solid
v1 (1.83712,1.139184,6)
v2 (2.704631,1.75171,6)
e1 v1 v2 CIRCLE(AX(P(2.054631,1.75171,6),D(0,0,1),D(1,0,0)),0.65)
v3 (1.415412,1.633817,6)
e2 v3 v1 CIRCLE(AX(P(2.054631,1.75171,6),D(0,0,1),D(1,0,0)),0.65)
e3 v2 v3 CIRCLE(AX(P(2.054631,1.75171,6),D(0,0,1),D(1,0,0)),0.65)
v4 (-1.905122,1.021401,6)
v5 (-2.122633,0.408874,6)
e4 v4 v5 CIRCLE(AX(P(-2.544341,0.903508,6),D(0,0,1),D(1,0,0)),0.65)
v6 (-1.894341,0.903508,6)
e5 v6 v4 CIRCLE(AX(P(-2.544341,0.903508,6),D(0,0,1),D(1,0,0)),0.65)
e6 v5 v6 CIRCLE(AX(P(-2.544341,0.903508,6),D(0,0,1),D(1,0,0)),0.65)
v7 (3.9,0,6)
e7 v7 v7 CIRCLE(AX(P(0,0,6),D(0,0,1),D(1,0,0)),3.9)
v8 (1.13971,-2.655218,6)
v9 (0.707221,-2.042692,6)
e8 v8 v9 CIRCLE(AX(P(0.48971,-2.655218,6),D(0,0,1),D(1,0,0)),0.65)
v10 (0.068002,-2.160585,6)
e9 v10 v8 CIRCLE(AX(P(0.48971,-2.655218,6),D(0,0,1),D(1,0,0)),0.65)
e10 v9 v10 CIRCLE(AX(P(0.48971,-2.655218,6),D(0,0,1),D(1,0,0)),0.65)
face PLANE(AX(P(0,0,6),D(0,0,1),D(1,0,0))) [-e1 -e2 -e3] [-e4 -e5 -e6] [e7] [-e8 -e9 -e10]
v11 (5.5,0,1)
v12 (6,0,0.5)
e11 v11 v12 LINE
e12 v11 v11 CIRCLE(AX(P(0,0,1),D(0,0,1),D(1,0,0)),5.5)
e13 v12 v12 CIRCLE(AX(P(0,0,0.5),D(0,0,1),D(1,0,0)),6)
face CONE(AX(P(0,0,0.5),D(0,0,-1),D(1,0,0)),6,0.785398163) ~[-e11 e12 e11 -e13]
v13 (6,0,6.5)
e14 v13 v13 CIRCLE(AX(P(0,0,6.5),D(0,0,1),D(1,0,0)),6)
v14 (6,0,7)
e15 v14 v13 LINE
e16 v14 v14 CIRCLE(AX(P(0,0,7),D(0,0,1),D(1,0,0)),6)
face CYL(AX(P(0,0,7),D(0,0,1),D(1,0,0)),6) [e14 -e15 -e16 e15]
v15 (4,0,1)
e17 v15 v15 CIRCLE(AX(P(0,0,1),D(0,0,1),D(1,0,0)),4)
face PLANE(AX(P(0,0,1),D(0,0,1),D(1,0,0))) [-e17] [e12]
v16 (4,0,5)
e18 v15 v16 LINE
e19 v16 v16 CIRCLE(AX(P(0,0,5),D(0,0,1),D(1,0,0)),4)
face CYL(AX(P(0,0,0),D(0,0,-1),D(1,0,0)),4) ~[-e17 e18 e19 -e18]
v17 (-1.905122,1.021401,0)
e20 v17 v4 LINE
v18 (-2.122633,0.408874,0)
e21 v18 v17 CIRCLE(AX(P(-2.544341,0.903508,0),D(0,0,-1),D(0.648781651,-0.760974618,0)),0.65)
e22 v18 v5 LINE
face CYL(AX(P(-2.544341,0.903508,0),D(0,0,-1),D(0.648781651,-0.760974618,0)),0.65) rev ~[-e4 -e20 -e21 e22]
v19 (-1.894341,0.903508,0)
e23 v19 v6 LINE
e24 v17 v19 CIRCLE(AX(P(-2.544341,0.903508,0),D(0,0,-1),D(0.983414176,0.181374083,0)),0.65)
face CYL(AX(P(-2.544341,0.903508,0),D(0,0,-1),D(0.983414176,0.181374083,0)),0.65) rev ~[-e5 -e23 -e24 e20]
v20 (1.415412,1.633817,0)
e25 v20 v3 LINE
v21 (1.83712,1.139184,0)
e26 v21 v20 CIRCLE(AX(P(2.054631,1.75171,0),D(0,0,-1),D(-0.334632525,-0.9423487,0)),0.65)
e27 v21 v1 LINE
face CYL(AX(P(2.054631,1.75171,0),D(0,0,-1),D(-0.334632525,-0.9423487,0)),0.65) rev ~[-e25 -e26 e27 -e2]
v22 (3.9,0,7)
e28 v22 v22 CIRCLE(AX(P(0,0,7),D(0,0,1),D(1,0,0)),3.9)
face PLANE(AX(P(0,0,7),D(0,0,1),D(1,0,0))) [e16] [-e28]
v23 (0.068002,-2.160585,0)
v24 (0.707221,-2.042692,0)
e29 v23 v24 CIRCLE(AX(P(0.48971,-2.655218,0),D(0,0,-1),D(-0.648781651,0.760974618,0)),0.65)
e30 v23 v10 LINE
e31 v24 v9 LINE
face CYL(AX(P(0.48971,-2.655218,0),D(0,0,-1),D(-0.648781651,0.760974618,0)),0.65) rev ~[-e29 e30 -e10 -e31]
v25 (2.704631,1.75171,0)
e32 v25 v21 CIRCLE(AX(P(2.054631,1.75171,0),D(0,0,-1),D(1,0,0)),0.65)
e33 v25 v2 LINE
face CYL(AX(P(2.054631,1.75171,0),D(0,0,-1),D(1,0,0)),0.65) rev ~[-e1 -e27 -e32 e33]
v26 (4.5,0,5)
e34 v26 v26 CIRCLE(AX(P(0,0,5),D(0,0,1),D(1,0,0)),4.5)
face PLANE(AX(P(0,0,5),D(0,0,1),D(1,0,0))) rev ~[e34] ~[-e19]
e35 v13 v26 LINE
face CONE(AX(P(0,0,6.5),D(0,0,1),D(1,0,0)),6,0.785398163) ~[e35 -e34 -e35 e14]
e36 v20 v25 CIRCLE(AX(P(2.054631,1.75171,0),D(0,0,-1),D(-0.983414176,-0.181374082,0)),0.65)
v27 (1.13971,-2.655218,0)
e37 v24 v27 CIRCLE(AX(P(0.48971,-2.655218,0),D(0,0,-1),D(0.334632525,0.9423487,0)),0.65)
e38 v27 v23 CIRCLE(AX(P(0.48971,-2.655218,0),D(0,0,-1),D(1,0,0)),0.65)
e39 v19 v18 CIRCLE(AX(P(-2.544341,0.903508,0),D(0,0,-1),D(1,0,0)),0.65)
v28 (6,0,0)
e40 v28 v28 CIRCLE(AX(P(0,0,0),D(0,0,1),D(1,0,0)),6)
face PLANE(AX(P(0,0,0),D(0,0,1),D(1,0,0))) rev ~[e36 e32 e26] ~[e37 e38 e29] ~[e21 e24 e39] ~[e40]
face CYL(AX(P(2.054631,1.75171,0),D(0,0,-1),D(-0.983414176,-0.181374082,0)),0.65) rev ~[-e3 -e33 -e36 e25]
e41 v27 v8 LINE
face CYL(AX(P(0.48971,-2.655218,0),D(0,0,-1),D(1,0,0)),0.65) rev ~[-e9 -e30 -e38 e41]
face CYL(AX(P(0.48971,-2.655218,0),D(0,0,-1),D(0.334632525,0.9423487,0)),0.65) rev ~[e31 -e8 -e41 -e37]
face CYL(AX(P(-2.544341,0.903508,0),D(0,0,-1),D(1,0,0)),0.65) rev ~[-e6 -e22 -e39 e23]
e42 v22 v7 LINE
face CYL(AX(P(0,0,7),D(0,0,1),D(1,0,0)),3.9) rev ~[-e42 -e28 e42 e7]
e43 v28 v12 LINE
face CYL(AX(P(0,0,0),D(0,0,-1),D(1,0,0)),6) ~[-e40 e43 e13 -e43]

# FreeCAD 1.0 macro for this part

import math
import FreeCAD as App
import Part
import Sketcher

V = App.Vector


def edges_at(feature, points):
    """Names of the edges that pass closest to the given points."""
    edges = feature.Shape.Edges
    near = lambda p: min(range(len(edges)), key=lambda i: edges[i].distToShape(Part.Vertex(*p))[0])
    return sorted({f"Edge{near(p) + 1}" for p in points})

doc = App.newDocument("Part")
body = doc.addObject("PartDesign::Body", "Body")

sketch1 = body.newObject("Sketcher::SketchObject", "Sketch")
sketch1.AttachmentSupport = (doc.getObject("XY_Plane"), [""])
sketch1.MapMode = "FlatFace"
sketch1.addGeometry([
    Part.Circle(V(0, 0, 0), V(0, 0, 1), 6),
    Part.Circle(V(0, 0, 0), V(0, 0, 1), 4),
], False)
sketch1.addConstraint([
    Sketcher.Constraint("Coincident", 0, 3, -1, 1),
    Sketcher.Constraint("Coincident", 1, 3, -1, 1),
    Sketcher.Constraint("Diameter", 0, 12.0),
    Sketcher.Constraint("Diameter", 1, 8.0),
])
pad1 = body.newObject("PartDesign::Pad", "Pad")
pad1.Profile = sketch1
pad1.Length = 1

sketch2 = body.newObject("Sketcher::SketchObject", "Sketch001")
sketch2.AttachmentSupport = (doc.getObject("XY_Plane"), [""])
sketch2.MapMode = "FlatFace"
sketch2.addGeometry([
    Part.Circle(V(0, 0, 0), V(0, 0, 1), 4),
    Part.ArcOfCircle(Part.Circle(V(0.48971, -2.655218, 0), V(0, 0, 1), 0.65), math.radians(0), math.radians(70.449806)),
    Part.ArcOfCircle(Part.Circle(V(0.48971, -2.655218, 0), V(0, 0, 1), 0.65), math.radians(130.449806), math.radians(360)),
    Part.ArcOfCircle(Part.Circle(V(0.48971, -2.655218, 0), V(0, 0, 1), 0.65), math.radians(70.449806), math.radians(130.449806)),
    Part.ArcOfCircle(Part.Circle(V(2.054631, 1.75171, 0), V(0, 0, 1), 0.65), math.radians(-109.550194), math.radians(0)),
    Part.ArcOfCircle(Part.Circle(V(2.054631, 1.75171, 0), V(0, 0, 1), 0.65), math.radians(-169.550194), math.radians(-109.550194)),
    Part.ArcOfCircle(Part.Circle(V(2.054631, 1.75171, 0), V(0, 0, 1), 0.65), math.radians(0), math.radians(190.449806)),
    Part.ArcOfCircle(Part.Circle(V(-2.544341, 0.903508, 0), V(0, 0, 1), 0.65), math.radians(10.449806), math.radians(310.449806)),
    Part.ArcOfCircle(Part.Circle(V(-2.544341, 0.903508, 0), V(0, 0, 1), 0.65), math.radians(0), math.radians(10.449806)),
    Part.ArcOfCircle(Part.Circle(V(-2.544341, 0.903508, 0), V(0, 0, 1), 0.65), math.radians(-49.550194), math.radians(0)),
], False)
sketch2.addConstraint([
    Sketcher.Constraint("Tangent", 1, 1, 2, 2),
    Sketcher.Constraint("Tangent", 2, 1, 3, 2),
    Sketcher.Constraint("Tangent", 3, 1, 1, 2),
    Sketcher.Constraint("Tangent", 4, 1, 5, 2),
    Sketcher.Constraint("Tangent", 5, 1, 6, 2),
    Sketcher.Constraint("Tangent", 6, 1, 4, 2),
    Sketcher.Constraint("Tangent", 7, 1, 8, 2),
    Sketcher.Constraint("Tangent", 8, 1, 9, 2),
    Sketcher.Constraint("Tangent", 9, 1, 7, 2),
    Sketcher.Constraint("Coincident", 0, 3, -1, 1),
    Sketcher.Constraint("Equal", 3, 4),
    Sketcher.Constraint("Equal", 6, 7),
    Sketcher.Constraint("Horizontal", 3, 3, 1, 1),
    Sketcher.Constraint("Horizontal", 5, 3, 6, 1),
    Sketcher.Constraint("Horizontal", 9, 3, 8, 1),
    Sketcher.Constraint("Diameter", 0, 8.0),
    Sketcher.Constraint("Radius", 1, 0.65),
    Sketcher.Constraint("DistanceX", -1, 1, 2, 1, 0.068002),
    Sketcher.Constraint("DistanceY", -1, 1, 7, 1, 1.021401),
    Sketcher.Constraint("DistanceX", 3, 1, 4, 1, 1.129899),
    Sketcher.Constraint("DistanceX", -1, 1, 1, 3, 0.48971),
    Sketcher.Constraint("DistanceY", 1, 3, -1, 1, 2.655218),
    Sketcher.Constraint("DistanceX", -1, 1, 4, 3, 2.054631),
    Sketcher.Constraint("DistanceY", -1, 1, 4, 3, 1.75171),
    Sketcher.Constraint("DistanceX", 7, 3, -1, 1, 2.544341),
    Sketcher.Constraint("DistanceX", -1, 1, 3, 1, 0.707221),
    Sketcher.Constraint("DistanceX", 5, 1, 4, 1, 0.421708),
    Sketcher.Constraint("DistanceX", 8, 3, 7, 1, 0.639219),
    Sketcher.Constraint("DistanceX", 9, 1, 8, 1, 0.228292),
])
pad2 = body.newObject("PartDesign::Pad", "Pad001")
pad2.Profile = sketch2
pad2.Length = 7

sketch3 = body.newObject("Sketcher::SketchObject", "Sketch002")
sketch3.AttachmentSupport = (doc.getObject("XY_Plane"), [""])
sketch3.MapMode = "FlatFace"
sketch3.AttachmentOffset = App.Placement(V(0, 0, 7), App.Rotation())
sketch3.addGeometry([
    Part.Circle(V(0, 0, 0), V(0, 0, 1), 6),
    Part.Circle(V(0, 0, 0), V(0, 0, 1), 4),
], False)
sketch3.addConstraint([
    Sketcher.Constraint("Coincident", 0, 3, -1, 1),
    Sketcher.Constraint("Coincident", 1, 3, -1, 1),
    Sketcher.Constraint("Diameter", 0, 12.0),
    Sketcher.Constraint("Diameter", 1, 8.0),
])
pad3 = body.newObject("PartDesign::Pad", "Pad002")
pad3.Profile = sketch3
pad3.Length = 2
pad3.Reversed = True

sketch4 = body.newObject("Sketcher::SketchObject", "Sketch003")
sketch4.AttachmentSupport = (doc.getObject("XY_Plane"), [""])
sketch4.MapMode = "FlatFace"
sketch4.AttachmentOffset = App.Placement(V(0, 0, 7), App.Rotation())
sketch4.addGeometry([
    Part.Circle(V(0, 0, 0), V(0, 0, 1), 3.9),
    Part.Circle(V(0.48971, -2.655218, 0), V(0, 0, 1), 0.65),
    Part.Circle(V(-2.544341, 0.903508, 0), V(0, 0, 1), 0.65),
    Part.Circle(V(2.054631, 1.75171, 0), V(0, 0, 1), 0.65),
], False)
sketch4.addConstraint([
    Sketcher.Constraint("Coincident", 0, 3, -1, 1),
    Sketcher.Constraint("Equal", 1, 2),
    Sketcher.Constraint("Equal", 2, 3),
    Sketcher.Constraint("Diameter", 0, 7.8),
    Sketcher.Constraint("Diameter", 1, 1.3),
    Sketcher.Constraint("DistanceX", -1, 1, 1, 3, 0.48971),
    Sketcher.Constraint("DistanceY", 1, 3, -1, 1, 2.655218),
    Sketcher.Constraint("DistanceX", 2, 3, -1, 1, 2.544341),
    Sketcher.Constraint("DistanceX", -1, 1, 3, 3, 2.054631),
    Sketcher.Constraint("DistanceY", -1, 1, 3, 3, 1.75171),
    Sketcher.Constraint("DistanceY", -1, 1, 2, 3, 0.903508),
])
pocket1 = body.newObject("PartDesign::Pocket", "Pocket")
pocket1.Profile = sketch4
pocket1.Length = 1
doc.recompute()

chamfer = body.newObject("PartDesign::Chamfer", "Chamfer")
chamfer.Base = (pocket1, edges_at(pocket1, [(-6, 0, 5)]))
chamfer.Size = 1.5
doc.recompute()

chamfer2 = body.newObject("PartDesign::Chamfer", "Chamfer001")
chamfer2.Base = (chamfer, edges_at(chamfer, [(-6, 0, 1)]))
chamfer2.Size = 0.5

doc.recompute()
